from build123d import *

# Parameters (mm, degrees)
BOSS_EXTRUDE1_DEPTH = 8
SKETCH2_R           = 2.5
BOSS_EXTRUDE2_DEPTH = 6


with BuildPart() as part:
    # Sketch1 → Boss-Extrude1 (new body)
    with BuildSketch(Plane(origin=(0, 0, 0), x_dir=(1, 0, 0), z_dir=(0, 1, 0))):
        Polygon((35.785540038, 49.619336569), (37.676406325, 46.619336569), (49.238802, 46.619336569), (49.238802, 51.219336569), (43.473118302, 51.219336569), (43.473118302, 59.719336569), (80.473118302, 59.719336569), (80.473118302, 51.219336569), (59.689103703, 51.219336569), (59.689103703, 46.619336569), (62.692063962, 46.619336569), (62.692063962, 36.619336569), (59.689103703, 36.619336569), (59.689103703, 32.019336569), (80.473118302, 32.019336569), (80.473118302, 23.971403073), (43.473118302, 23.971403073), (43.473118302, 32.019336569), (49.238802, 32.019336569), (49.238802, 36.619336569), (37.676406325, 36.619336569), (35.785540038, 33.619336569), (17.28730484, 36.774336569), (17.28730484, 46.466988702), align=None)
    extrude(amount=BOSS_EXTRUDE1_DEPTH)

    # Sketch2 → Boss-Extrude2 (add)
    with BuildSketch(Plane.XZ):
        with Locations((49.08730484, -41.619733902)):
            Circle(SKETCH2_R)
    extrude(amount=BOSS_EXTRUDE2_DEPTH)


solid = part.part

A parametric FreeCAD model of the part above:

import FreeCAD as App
import Part
import Sketcher


def add_polygon(sketch, points):
    """Adds a closed chain of lines whose ends are joined by coincident constraints."""
    first, n = sketch.GeometryCount, len(points)
    for a, b in zip(points, points[1:] + points[:1]):
        sketch.addGeometry(Part.LineSegment(App.Vector(*a, 0), App.Vector(*b, 0)), False)
    for i in range(n):
        sketch.addConstraint(Sketcher.Constraint("Coincident", first + i, 2, first + (i + 1) % n, 1))

doc = App.newDocument("Part")
body = doc.addObject("PartDesign::Body", "Body")

# Sketch on XZ plane
sketch1 = body.newObject("Sketcher::SketchObject", "Sketch")
sketch1.AttachmentSupport = (doc.getObject("XZ_Plane"), [""])
sketch1.MapMode = "FlatFace"
add_polygon(sketch1, [(37.7, -46.6), (35.8, -49.6), (17.3, -46.5), (17.3, -36.8), (35.8, -33.6), (37.7, -36.6), (49.2, -36.6), (49.2, -32), (43.5, -32), (43.5, -24), (80.5, -24), (80.5, -32), (59.7, -32), (59.7, -36.6), (62.7, -36.6), (62.7, -46.6), (59.7, -46.6), (59.7, -51.2), (80.5, -51.2), (80.5, -59.7), (43.5, -59.7), (43.5, -51.2), (49.2, -51.2), (49.2, -46.6)])  # lines 0-23
sketch1.addConstraint([
    Sketcher.Constraint("Vertical", 2),
    Sketcher.Constraint("Horizontal", 5),
    Sketcher.Constraint("Vertical", 6),
    Sketcher.Constraint("Horizontal", 7),
    Sketcher.Constraint("Vertical", 8),
    Sketcher.Constraint("Horizontal", 9),
    Sketcher.Constraint("Vertical", 10),
    Sketcher.Constraint("Horizontal", 11),
    Sketcher.Constraint("Vertical", 12),
    Sketcher.Constraint("Horizontal", 13),
    Sketcher.Constraint("Vertical", 14),
    Sketcher.Constraint("Horizontal", 15),
    Sketcher.Constraint("Vertical", 16),
    Sketcher.Constraint("Horizontal", 17),
    Sketcher.Constraint("Vertical", 18),
    Sketcher.Constraint("Horizontal", 19),
    Sketcher.Constraint("Vertical", 20),
    Sketcher.Constraint("Horizontal", 21),
    Sketcher.Constraint("Vertical", 22),
    Sketcher.Constraint("Horizontal", 23),
    Sketcher.Constraint("Horizontal", 7, 2, 10, 2),
    Sketcher.Constraint("Horizontal", 5, 2, 12, 2),
    Sketcher.Constraint("Horizontal", 17, 2, 20, 2),
    Sketcher.Constraint("Horizontal", 15, 2, 22, 2),
    Sketcher.Constraint("Vertical", 0, 2, 3, 2),
    Sketcher.Constraint("Vertical", 12, 2, 15, 2),
    Sketcher.Constraint("Vertical", 10, 2, 17, 2),
    Sketcher.Constraint("Vertical", 8, 2, 19, 2),
    Sketcher.Constraint("Vertical", 6, 2, 21, 2),
    Sketcher.Constraint("Vertical", 4, 2, 23, 2),
    Sketcher.Constraint("Equal", 12, 16),
    Sketcher.Constraint("Equal", 0, 4),
    Sketcher.Constraint("DistanceX", 9, 1, 9, 2, 37.0),
    Sketcher.Constraint("DistanceY", 14, 2, 14, 1, 10.0),
    Sketcher.Constraint("DistanceY", 6, 1, 6, 2, 4.6),
    Sketcher.Constraint("DistanceY", 18, 2, 18, 1, 8.5),
    Sketcher.Constraint("DistanceY", 0, 2, 3, 2, 16.0),
    Sketcher.Constraint("DistanceY", 0, 2, 2, 2, 12.845),
    Sketcher.Constraint("DistanceX", 13, 1, 13, 2, 3.00296),
    Sketcher.Constraint("DistanceX", 2, 2, 4, 2, 20.389101),
    Sketcher.Constraint("DistanceX", 6, 2, 11, 2, 10.450302),
    Sketcher.Constraint("Distance", 3, 18.76536),
    Sketcher.Constraint("DistanceX", 5, 1, 5, 2, 11.562396),
    Sketcher.Constraint("DistanceX", 7, 2, 7, 1, 5.765684),
    Sketcher.Constraint("DistanceY", 2, 1, 2, 2, 9.692652),
    Sketcher.Constraint("DistanceY", 8, 1, 8, 2, 8.047933),
    Sketcher.Constraint("DistanceX", -1, 1, 0, 2, 35.78554),
    Sketcher.Constraint("DistanceY", 1, 2, -1, 1, 46.466989),
])
pad1 = body.newObject("PartDesign::Pad", "Pad")
pad1.Profile = sketch1
pad1.Length = 8
pad1.Reversed = True

# Sketch on XZ plane
sketch2 = body.newObject("Sketcher::SketchObject", "Sketch001")
sketch2.AttachmentSupport = (doc.getObject("XZ_Plane"), [""])
sketch2.MapMode = "FlatFace"
sketch2.addGeometry(Part.Circle(App.Vector(49.1, -41.6, 0), App.Vector(0, 0, 1), 2.5), False)
sketch2.addConstraint([
    Sketcher.Constraint("Diameter", 0, 5.0),
    Sketcher.Constraint("DistanceX", -1, 1, 0, 3, 49.087305),
    Sketcher.Constraint("DistanceY", 0, 3, -1, 1, 41.619734),
])
pad2 = body.newObject("PartDesign::Pad", "Pad001")
pad2.Profile = sketch2
pad2.Length = 6

doc.recompute()
